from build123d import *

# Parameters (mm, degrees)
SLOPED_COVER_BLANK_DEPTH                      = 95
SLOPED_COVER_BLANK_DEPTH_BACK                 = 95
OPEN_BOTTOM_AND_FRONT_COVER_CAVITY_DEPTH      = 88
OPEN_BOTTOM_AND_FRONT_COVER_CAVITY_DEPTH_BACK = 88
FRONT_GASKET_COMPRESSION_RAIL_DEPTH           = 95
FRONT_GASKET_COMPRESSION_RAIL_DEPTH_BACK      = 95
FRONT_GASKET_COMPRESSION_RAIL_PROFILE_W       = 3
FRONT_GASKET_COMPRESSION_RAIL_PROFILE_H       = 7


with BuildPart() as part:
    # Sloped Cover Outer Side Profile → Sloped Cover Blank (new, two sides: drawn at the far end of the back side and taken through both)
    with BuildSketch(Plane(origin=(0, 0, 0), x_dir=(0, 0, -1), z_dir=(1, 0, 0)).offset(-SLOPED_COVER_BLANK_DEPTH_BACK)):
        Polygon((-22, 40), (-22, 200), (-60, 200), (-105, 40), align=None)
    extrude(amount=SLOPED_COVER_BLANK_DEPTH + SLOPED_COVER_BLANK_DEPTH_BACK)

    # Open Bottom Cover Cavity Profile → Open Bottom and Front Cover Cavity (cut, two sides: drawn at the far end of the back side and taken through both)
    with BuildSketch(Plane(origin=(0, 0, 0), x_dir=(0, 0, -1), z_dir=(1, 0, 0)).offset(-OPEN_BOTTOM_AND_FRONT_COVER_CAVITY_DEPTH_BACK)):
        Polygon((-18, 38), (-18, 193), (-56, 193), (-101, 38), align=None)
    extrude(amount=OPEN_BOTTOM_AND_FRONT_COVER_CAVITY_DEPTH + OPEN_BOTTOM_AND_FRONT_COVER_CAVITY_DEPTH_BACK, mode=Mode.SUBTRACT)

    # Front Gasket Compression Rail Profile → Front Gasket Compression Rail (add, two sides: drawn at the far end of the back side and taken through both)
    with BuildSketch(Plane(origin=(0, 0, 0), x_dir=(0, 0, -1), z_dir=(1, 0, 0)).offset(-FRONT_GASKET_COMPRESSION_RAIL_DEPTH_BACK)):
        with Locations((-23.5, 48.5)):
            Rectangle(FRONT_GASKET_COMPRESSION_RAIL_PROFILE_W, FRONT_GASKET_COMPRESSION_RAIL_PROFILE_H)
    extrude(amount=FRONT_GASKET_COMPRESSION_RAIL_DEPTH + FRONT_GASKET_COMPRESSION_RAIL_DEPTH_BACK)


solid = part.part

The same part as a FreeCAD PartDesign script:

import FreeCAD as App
import Part
import Sketcher

V = App.Vector


def add_polygon(sketch, points):
    """Adds a closed chain of lines whose ends are joined by coincident constraints."""
    first, n = sketch.GeometryCount, len(points)
    for a, b in zip(points, points[1:] + points[:1]):
        sketch.addGeometry(Part.LineSegment(App.Vector(*a, 0), App.Vector(*b, 0)), False)
    for i in range(n):
        sketch.addConstraint(Sketcher.Constraint("Coincident", first + i, 2, first + (i + 1) % n, 1))

doc = App.newDocument("Part")
params = doc.addObject("Spreadsheet::Sheet", "Params")
for row, (alias, value) in enumerate([
    ("sketch1_width", "160 mm"),
    ("sketch1_height", "38 mm"),
    ("sketch1_height2", "83 mm"),
    ("pad1_length", "95 mm"),
    ("pad1_length2", "95 mm"),
    ("sketch2_width", "155 mm"),
    ("sketch2_height", "38 mm"),
    ("sketch2_height2", "83 mm"),
    ("pocket1_length", "88 mm"),
    ("pocket1_length2", "88 mm"),
    ("sketch3_width", "7 mm"),
    ("sketch3_height", "3 mm"),
    ("pad2_length", "95 mm"),
    ("pad2_length2", "95 mm"),
], start=1):
    params.set(f"A{row}", alias)
    params.set(f"B{row}", "=" + value)
    params.setAlias(f"B{row}", alias)

body = doc.addObject("PartDesign::Body", "Body")

# Sketch on YZ plane
sketch1 = body.newObject("Sketcher::SketchObject", "Sketch")
sketch1.AttachmentSupport = (doc.getObject("YZ_Plane"), [""])
sketch1.MapMode = "FlatFace"
add_polygon(sketch1, [(40, 22), (200, 22), (200, 60), (40, 105)])  # lines 0-3
sketch1.addConstraint(Sketcher.Constraint("Horizontal", 0))
sketch1.addConstraint(Sketcher.Constraint("Vertical", 1))
sketch1.addConstraint(Sketcher.Constraint("Vertical", 3))
sketch1.addConstraint(Sketcher.Constraint("DistanceX", 0, 1, 0, 2, 160.0))
sketch1.addConstraint(Sketcher.Constraint("DistanceY", 1, 1, 1, 2, 38.0))
sketch1.addConstraint(Sketcher.Constraint("DistanceY", 3, 2, 3, 1, 83.0))
sketch1.addConstraint(Sketcher.Constraint("DistanceX", -1, 1, 0, 2, 200.0))
sketch1.addConstraint(Sketcher.Constraint("DistanceY", -1, 1, 0, 2, 22.0))
sketch1.setExpression("Constraints[7]", "Params.sketch1_width")
sketch1.setExpression("Constraints[8]", "Params.sketch1_height")
sketch1.setExpression("Constraints[9]", "Params.sketch1_height2")
pad1 = body.newObject("PartDesign::Pad", "Pad")
pad1.Profile = sketch1
pad1.Type = "TwoLengths"
pad1.setExpression("Length", "Params.pad1_length")
pad1.setExpression("Length2", "Params.pad1_length2")

# Sketch on YZ plane
sketch2 = body.newObject("Sketcher::SketchObject", "Sketch001")
sketch2.AttachmentSupport = (doc.getObject("YZ_Plane"), [""])
sketch2.MapMode = "FlatFace"
add_polygon(sketch2, [(38, 18), (193, 18), (193, 56), (38, 101)])  # lines 0-3
sketch2.addConstraint(Sketcher.Constraint("Horizontal", 0))
sketch2.addConstraint(Sketcher.Constraint("Vertical", 1))
sketch2.addConstraint(Sketcher.Constraint("Vertical", 3))
sketch2.addConstraint(Sketcher.Constraint("DistanceX", 0, 1, 0, 2, 155.0))
sketch2.addConstraint(Sketcher.Constraint("DistanceY", 1, 1, 1, 2, 38.0))
sketch2.addConstraint(Sketcher.Constraint("DistanceY", 3, 2, 3, 1, 83.0))
sketch2.addConstraint(Sketcher.Constraint("DistanceX", -1, 1, 0, 2, 193.0))
sketch2.addConstraint(Sketcher.Constraint("DistanceY", -1, 1, 0, 2, 18.0))
sketch2.setExpression("Constraints[7]", "Params.sketch2_width")
sketch2.setExpression("Constraints[8]", "Params.sketch2_height")
sketch2.setExpression("Constraints[9]", "Params.sketch2_height2")
pocket1 = body.newObject("PartDesign::Pocket", "Pocket")
pocket1.Profile = sketch2
pocket1.Type = "TwoLengths"
pocket1.setExpression("Length", "Params.pocket1_length")
pocket1.setExpression("Length2", "Params.pocket1_length2")
pocket1.Reversed = True

# Sketch on YZ plane
sketch3 = body.newObject("Sketcher::SketchObject", "Sketch002")
sketch3.AttachmentSupport = (doc.getObject("YZ_Plane"), [""])
sketch3.MapMode = "FlatFace"
add_polygon(sketch3, [(52, 25), (45, 25), (45, 22), (52, 22)])  # lines 0-3
sketch3.addConstraint(Sketcher.Constraint("Horizontal", 0))
sketch3.addConstraint(Sketcher.Constraint("Vertical", 1))
sketch3.addConstraint(Sketcher.Constraint("Horizontal", 2))
sketch3.addConstraint(Sketcher.Constraint("Vertical", 3))
sketch3.addConstraint(Sketcher.Constraint("DistanceX", 0, 2, 0, 1, 7.0))
sketch3.addConstraint(Sketcher.Constraint("DistanceY", 1, 2, 1, 1, 3.0))
sketch3.addConstraint(Sketcher.Constraint("DistanceX", -1, 1, 0, 2, 45.0))
sketch3.addConstraint(Sketcher.Constraint("DistanceY", -1, 1, 0, 2, 25.0))
sketch3.setExpression("Constraints[8]", "Params.sketch3_width")
sketch3.setExpression("Constraints[9]", "Params.sketch3_height")
pad2 = body.newObject("PartDesign::Pad", "Pad001")
pad2.Profile = sketch3
pad2.Type = "TwoLengths"
pad2.setExpression("Length", "Params.pad2_length")
pad2.setExpression("Length2", "Params.pad2_length2")

doc.recompute()
